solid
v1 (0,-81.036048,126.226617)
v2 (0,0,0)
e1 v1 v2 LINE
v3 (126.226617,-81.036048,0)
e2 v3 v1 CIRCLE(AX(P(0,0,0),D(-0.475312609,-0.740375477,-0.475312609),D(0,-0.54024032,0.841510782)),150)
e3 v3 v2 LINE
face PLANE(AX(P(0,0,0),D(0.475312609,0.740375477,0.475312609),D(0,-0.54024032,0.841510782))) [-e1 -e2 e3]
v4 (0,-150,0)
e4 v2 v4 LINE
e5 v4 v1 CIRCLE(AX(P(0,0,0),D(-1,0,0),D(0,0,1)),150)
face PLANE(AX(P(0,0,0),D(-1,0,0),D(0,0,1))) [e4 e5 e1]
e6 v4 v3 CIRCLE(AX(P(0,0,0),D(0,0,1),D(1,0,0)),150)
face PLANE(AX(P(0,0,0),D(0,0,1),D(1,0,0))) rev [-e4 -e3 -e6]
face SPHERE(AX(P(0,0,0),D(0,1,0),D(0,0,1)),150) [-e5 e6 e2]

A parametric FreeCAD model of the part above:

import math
import FreeCAD as App
import Part
import Sketcher

V = App.Vector
Q = App.Units.Quantity

doc = App.newDocument("Part")
body = doc.addObject("PartDesign::Body", "Body")

sketch1 = body.newObject("Sketcher::SketchObject", "Sketch")
sketch1.AttachmentSupport = (doc.getObject("XY_Plane"), [""])
sketch1.MapMode = "FlatFace"
sketch1.addGeometry(Part.LineSegment(V(0, 0, 0), V(0, -150, 0)), False)
sketch1.addGeometry(Part.ArcOfCircle(Part.Circle(V(0, 0, 0), V(0, 0, 1), 150), math.radians(-90), math.radians(-32.7)), False)
sketch1.addGeometry(Part.LineSegment(V(126.226617, -81.036048, 0), V(0, 0, 0)), False)
sketch1.addConstraint(Sketcher.Constraint("Coincident", 0, 2, 1, 1))
sketch1.addConstraint(Sketcher.Constraint("Coincident", 1, 2, 2, 1))
sketch1.addConstraint(Sketcher.Constraint("Coincident", 2, 2, 0, 1))
sketch1.addConstraint(Sketcher.Constraint("Vertical", 0))
sketch1.addConstraint(Sketcher.Constraint("Coincident", 1, 3, -1, 1))
sketch1.addConstraint(Sketcher.Constraint("Coincident", 2, 2, -1, 1))
sketch1.addConstraint(Sketcher.Constraint("Radius", 1, Q("150 mm")))
sketch1.addConstraint(Sketcher.Constraint("Angle", 2, Q("147.3 deg")))
revolution = body.newObject("PartDesign::Revolution", "Revolution")
revolution.Profile = sketch1
revolution.ReferenceAxis = (sketch1, ["V_Axis"])
revolution.Angle = 90
revolution.Reversed = True

sketch2 = body.newObject("Sketcher::SketchObject", "Sketch001")
sketch2.Placement = App.Placement(V(0, 0, 0), App.Rotation(V(-0.879816983, 0.399980685, 0.256783036), V(0, 0.54024032, -0.841510781), V(-0.475312609, -0.740375477, -0.475312609), "ZXY"))
sketch2.addGeometry(Part.LineSegment(V(0, -150, 0), V(0, 0, 0)), False)
sketch2.addGeometry(Part.LineSegment(V(0, 0, 0), V(-143.469176, -43.778941, 0)), False)
sketch2.addGeometry(Part.ArcOfCircle(Part.Circle(V(0, 0, 0), V(0, 0, 1), 150), math.radians(-163.030679), math.radians(-90)), False)
sketch2.addConstraint(Sketcher.Constraint("Coincident", 0, 2, 1, 1))
sketch2.addConstraint(Sketcher.Constraint("Coincident", 1, 2, 2, 1))
sketch2.addConstraint(Sketcher.Constraint("Coincident", 2, 2, 0, 1))
sketch2.addConstraint(Sketcher.Constraint("Vertical", 0))
sketch2.addConstraint(Sketcher.Constraint("Coincident", 2, 3, -1, 1))
sketch2.addConstraint(Sketcher.Constraint("Coincident", 0, 2, -1, 1))
sketch2.addConstraint(Sketcher.Constraint("Radius", 2, Q("150 mm")))
sketch2.addConstraint(Sketcher.Constraint("DistanceY", 1, 2, -1, 1, Q("43.778941 mm")))
pocket1 = body.newObject("PartDesign::Pocket", "Pocket")
pocket1.Profile = sketch2
pocket1.Type = "ThroughAll"

doc.recompute()
